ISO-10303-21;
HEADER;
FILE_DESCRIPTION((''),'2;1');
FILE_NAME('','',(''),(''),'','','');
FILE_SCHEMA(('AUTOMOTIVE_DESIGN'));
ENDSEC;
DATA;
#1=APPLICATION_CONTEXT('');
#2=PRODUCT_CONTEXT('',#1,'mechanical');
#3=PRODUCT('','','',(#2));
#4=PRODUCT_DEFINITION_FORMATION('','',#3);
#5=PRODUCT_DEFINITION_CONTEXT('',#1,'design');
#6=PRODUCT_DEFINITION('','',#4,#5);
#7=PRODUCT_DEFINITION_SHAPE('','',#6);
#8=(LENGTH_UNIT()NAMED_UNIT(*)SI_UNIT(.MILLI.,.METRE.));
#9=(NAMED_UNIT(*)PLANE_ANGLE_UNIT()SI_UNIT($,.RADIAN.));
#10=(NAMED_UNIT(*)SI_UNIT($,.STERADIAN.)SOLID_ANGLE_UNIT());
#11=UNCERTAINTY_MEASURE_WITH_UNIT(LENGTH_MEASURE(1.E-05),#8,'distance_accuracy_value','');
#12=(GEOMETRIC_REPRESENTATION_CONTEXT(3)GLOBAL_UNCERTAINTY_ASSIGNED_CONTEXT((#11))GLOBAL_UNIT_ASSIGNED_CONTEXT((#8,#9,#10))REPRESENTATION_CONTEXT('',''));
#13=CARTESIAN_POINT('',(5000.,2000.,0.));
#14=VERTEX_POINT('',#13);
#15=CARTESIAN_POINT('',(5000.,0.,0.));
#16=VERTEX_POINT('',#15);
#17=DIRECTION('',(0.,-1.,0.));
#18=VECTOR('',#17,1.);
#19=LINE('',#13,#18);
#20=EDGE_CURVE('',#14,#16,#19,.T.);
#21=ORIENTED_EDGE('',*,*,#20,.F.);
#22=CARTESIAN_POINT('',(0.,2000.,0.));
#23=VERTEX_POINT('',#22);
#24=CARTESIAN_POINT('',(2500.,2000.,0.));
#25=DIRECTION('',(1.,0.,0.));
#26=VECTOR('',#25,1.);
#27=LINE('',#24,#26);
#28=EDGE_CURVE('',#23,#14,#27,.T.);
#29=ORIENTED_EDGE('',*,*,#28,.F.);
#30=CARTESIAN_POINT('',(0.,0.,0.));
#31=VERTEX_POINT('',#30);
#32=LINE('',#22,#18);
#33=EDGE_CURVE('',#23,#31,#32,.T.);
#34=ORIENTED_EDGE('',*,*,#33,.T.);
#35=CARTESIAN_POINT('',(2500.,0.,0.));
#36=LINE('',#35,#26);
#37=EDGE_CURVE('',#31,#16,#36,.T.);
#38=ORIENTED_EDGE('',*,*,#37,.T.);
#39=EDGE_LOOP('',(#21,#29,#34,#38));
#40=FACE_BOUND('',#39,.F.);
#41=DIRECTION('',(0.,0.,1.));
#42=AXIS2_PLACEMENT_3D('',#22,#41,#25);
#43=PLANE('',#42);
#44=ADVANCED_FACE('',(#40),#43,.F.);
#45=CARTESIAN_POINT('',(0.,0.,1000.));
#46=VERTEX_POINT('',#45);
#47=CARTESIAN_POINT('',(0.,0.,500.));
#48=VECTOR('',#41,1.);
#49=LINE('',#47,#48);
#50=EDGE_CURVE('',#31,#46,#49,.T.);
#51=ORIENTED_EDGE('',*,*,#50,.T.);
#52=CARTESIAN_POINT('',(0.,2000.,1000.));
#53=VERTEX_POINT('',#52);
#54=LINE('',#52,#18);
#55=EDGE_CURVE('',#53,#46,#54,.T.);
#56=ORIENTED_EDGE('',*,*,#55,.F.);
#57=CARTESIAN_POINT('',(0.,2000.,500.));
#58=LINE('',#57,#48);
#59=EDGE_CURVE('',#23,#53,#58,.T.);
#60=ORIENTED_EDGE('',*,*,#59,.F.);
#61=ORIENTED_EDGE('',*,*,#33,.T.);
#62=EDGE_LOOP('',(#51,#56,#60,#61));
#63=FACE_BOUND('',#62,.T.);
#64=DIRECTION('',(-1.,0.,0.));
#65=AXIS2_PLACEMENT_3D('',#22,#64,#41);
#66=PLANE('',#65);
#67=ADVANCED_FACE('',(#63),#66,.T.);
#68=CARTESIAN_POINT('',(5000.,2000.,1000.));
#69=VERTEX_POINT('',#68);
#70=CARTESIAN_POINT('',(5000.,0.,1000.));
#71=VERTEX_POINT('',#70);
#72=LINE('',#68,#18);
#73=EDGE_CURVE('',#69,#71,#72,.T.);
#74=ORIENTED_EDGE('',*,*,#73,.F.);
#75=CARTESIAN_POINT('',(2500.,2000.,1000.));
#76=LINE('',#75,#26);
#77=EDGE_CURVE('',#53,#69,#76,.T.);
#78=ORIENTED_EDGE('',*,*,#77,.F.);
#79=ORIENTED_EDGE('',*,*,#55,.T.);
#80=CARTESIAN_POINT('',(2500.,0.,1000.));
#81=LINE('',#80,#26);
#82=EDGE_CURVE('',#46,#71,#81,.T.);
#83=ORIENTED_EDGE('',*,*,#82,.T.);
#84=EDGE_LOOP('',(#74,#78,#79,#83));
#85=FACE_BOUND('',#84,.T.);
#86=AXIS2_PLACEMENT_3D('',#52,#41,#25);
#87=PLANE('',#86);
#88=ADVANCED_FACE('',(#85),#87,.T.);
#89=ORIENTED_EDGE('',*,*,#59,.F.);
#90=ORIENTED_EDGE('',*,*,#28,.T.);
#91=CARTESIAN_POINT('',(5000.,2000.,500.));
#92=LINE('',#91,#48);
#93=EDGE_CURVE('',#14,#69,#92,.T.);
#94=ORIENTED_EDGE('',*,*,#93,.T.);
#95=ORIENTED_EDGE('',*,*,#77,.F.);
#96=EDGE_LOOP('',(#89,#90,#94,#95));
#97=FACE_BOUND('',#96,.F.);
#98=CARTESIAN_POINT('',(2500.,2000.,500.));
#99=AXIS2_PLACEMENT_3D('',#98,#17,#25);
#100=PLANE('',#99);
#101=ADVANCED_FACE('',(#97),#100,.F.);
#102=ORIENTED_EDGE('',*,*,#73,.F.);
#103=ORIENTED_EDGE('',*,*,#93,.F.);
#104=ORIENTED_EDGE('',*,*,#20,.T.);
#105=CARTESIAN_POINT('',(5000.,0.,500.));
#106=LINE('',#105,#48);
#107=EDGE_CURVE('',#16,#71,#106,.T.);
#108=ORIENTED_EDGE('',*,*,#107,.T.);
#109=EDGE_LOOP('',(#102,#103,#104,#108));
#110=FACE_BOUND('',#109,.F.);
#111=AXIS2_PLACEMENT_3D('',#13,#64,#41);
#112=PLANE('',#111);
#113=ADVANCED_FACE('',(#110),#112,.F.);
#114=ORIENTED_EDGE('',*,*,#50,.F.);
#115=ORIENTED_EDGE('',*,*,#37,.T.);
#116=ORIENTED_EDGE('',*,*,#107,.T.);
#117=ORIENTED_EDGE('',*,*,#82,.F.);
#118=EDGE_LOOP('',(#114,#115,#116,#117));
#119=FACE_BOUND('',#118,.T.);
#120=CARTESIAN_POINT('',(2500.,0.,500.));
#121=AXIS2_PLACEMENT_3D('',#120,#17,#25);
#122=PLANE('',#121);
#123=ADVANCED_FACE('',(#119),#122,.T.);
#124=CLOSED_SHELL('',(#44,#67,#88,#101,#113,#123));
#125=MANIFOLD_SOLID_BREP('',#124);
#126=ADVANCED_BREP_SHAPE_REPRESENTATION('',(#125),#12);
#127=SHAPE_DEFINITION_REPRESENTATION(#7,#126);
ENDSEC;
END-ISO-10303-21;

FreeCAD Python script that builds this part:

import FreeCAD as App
import Part
import Sketcher
from FreeCAD import Vector
Q = App.Units.Quantity

doc = App.newDocument("Part")
params = doc.addObject("Spreadsheet::Sheet", "Params")
for row, (alias, value) in enumerate([
    ("sketch1_width", "5000 mm"),
    ("sketch1_height", "1000 mm"),
    ("pad1_length", "2000 mm"),
], start=1):
    params.set(f"A{row}", alias)
    params.set(f"B{row}", "=" + value)
    params.setAlias(f"B{row}", alias)

body = doc.addObject("PartDesign::Body", "Body")

# Sketch on XZ plane
sketch1 = body.newObject("Sketcher::SketchObject", "Sketch")
sketch1.AttachmentSupport = (doc.getObject("XZ_Plane"), [""])
sketch1.MapMode = "FlatFace"
sketch1.addGeometry([
    Part.LineSegment(Vector(-2503, -244, 0), Vector(-2503, -1244, 0)),
    Part.LineSegment(Vector(-2503, -1244, 0), Vector(2497, -1244, 0)),
    Part.LineSegment(Vector(2497, -1244, 0), Vector(2497, -244, 0)),
    Part.LineSegment(Vector(2497, -244, 0), Vector(-2503, -244, 0)),
], False)
sketch1.addConstraint([
    Sketcher.Constraint("Coincident", 0, 2, 1, 1),
    Sketcher.Constraint("Coincident", 1, 2, 2, 1),
    Sketcher.Constraint("Coincident", 2, 2, 3, 1),
    Sketcher.Constraint("Coincident", 3, 2, 0, 1),
    Sketcher.Constraint("Vertical", 0),
    Sketcher.Constraint("Horizontal", 1),
    Sketcher.Constraint("Vertical", 2),
    Sketcher.Constraint("Horizontal", 3),
    Sketcher.Constraint("DistanceX", 1, 1, 1, 2, Q("5000 mm")),
    Sketcher.Constraint("DistanceY", 0, 2, 0, 1, Q("1000 mm")),
    Sketcher.Constraint("DistanceX", 0, 2, -1, 1, Q("2502.510202 mm")),
    Sketcher.Constraint("DistanceY", 0, 2, -1, 1, Q("1244.439666 mm")),
])
sketch1.setExpression("Constraints[8]", "Params.sketch1_width")
sketch1.setExpression("Constraints[9]", "Params.sketch1_height")
pad1 = body.newObject("PartDesign::Pad", "Pad")
pad1.Profile = sketch1
pad1.setExpression("Length", "Params.pad1_length")
body2 = doc.addObject("PartDesign::Body", "Body001")
doc.recompute()

body.Placement = App.Placement(Vector(2502.510202, 2000, 1244.439666), App.Rotation(Vector(0, 0, 1), 0))
boolean = body2.newObject("PartDesign::Boolean", "Boolean")
boolean.Type = "Fuse"
boolean.addObjects([body])

doc.recompute()
